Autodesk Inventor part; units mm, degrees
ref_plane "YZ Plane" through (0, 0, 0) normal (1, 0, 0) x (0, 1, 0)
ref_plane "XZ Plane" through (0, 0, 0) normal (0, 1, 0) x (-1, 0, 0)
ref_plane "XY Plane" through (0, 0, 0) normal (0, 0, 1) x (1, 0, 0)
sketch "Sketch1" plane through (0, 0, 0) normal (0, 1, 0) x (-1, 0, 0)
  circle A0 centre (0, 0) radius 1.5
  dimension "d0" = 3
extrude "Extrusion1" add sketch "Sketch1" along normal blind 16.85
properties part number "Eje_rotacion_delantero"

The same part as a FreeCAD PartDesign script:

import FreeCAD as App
import Part
import Sketcher

doc = App.newDocument("Part")
body = doc.addObject("PartDesign::Body", "Body")

# Sketch on XZ plane
sketch1 = doc.addObject("Sketcher::SketchObject", "Sketch")
body.addObject(sketch1)
sketch1.AttachmentSupport = (doc.XZ_Plane, [""])
sketch1.MapMode = "FlatFace"
sketch1.addGeometry(Part.Circle(App.Vector(0, 0, 0), App.Vector(0, 0, 1), 1.5), False)
sketch1.addConstraint([
    Sketcher.Constraint("Coincident", 0, 3, -1, 1),
    Sketcher.Constraint("Diameter", 0, 3.0),
])
pad1 = doc.addObject("PartDesign::Pad", "Pad")
body.addObject(pad1)
pad1.Profile = sketch1
pad1.Length = 16.85
pad1.Reversed = True

doc.recompute()
